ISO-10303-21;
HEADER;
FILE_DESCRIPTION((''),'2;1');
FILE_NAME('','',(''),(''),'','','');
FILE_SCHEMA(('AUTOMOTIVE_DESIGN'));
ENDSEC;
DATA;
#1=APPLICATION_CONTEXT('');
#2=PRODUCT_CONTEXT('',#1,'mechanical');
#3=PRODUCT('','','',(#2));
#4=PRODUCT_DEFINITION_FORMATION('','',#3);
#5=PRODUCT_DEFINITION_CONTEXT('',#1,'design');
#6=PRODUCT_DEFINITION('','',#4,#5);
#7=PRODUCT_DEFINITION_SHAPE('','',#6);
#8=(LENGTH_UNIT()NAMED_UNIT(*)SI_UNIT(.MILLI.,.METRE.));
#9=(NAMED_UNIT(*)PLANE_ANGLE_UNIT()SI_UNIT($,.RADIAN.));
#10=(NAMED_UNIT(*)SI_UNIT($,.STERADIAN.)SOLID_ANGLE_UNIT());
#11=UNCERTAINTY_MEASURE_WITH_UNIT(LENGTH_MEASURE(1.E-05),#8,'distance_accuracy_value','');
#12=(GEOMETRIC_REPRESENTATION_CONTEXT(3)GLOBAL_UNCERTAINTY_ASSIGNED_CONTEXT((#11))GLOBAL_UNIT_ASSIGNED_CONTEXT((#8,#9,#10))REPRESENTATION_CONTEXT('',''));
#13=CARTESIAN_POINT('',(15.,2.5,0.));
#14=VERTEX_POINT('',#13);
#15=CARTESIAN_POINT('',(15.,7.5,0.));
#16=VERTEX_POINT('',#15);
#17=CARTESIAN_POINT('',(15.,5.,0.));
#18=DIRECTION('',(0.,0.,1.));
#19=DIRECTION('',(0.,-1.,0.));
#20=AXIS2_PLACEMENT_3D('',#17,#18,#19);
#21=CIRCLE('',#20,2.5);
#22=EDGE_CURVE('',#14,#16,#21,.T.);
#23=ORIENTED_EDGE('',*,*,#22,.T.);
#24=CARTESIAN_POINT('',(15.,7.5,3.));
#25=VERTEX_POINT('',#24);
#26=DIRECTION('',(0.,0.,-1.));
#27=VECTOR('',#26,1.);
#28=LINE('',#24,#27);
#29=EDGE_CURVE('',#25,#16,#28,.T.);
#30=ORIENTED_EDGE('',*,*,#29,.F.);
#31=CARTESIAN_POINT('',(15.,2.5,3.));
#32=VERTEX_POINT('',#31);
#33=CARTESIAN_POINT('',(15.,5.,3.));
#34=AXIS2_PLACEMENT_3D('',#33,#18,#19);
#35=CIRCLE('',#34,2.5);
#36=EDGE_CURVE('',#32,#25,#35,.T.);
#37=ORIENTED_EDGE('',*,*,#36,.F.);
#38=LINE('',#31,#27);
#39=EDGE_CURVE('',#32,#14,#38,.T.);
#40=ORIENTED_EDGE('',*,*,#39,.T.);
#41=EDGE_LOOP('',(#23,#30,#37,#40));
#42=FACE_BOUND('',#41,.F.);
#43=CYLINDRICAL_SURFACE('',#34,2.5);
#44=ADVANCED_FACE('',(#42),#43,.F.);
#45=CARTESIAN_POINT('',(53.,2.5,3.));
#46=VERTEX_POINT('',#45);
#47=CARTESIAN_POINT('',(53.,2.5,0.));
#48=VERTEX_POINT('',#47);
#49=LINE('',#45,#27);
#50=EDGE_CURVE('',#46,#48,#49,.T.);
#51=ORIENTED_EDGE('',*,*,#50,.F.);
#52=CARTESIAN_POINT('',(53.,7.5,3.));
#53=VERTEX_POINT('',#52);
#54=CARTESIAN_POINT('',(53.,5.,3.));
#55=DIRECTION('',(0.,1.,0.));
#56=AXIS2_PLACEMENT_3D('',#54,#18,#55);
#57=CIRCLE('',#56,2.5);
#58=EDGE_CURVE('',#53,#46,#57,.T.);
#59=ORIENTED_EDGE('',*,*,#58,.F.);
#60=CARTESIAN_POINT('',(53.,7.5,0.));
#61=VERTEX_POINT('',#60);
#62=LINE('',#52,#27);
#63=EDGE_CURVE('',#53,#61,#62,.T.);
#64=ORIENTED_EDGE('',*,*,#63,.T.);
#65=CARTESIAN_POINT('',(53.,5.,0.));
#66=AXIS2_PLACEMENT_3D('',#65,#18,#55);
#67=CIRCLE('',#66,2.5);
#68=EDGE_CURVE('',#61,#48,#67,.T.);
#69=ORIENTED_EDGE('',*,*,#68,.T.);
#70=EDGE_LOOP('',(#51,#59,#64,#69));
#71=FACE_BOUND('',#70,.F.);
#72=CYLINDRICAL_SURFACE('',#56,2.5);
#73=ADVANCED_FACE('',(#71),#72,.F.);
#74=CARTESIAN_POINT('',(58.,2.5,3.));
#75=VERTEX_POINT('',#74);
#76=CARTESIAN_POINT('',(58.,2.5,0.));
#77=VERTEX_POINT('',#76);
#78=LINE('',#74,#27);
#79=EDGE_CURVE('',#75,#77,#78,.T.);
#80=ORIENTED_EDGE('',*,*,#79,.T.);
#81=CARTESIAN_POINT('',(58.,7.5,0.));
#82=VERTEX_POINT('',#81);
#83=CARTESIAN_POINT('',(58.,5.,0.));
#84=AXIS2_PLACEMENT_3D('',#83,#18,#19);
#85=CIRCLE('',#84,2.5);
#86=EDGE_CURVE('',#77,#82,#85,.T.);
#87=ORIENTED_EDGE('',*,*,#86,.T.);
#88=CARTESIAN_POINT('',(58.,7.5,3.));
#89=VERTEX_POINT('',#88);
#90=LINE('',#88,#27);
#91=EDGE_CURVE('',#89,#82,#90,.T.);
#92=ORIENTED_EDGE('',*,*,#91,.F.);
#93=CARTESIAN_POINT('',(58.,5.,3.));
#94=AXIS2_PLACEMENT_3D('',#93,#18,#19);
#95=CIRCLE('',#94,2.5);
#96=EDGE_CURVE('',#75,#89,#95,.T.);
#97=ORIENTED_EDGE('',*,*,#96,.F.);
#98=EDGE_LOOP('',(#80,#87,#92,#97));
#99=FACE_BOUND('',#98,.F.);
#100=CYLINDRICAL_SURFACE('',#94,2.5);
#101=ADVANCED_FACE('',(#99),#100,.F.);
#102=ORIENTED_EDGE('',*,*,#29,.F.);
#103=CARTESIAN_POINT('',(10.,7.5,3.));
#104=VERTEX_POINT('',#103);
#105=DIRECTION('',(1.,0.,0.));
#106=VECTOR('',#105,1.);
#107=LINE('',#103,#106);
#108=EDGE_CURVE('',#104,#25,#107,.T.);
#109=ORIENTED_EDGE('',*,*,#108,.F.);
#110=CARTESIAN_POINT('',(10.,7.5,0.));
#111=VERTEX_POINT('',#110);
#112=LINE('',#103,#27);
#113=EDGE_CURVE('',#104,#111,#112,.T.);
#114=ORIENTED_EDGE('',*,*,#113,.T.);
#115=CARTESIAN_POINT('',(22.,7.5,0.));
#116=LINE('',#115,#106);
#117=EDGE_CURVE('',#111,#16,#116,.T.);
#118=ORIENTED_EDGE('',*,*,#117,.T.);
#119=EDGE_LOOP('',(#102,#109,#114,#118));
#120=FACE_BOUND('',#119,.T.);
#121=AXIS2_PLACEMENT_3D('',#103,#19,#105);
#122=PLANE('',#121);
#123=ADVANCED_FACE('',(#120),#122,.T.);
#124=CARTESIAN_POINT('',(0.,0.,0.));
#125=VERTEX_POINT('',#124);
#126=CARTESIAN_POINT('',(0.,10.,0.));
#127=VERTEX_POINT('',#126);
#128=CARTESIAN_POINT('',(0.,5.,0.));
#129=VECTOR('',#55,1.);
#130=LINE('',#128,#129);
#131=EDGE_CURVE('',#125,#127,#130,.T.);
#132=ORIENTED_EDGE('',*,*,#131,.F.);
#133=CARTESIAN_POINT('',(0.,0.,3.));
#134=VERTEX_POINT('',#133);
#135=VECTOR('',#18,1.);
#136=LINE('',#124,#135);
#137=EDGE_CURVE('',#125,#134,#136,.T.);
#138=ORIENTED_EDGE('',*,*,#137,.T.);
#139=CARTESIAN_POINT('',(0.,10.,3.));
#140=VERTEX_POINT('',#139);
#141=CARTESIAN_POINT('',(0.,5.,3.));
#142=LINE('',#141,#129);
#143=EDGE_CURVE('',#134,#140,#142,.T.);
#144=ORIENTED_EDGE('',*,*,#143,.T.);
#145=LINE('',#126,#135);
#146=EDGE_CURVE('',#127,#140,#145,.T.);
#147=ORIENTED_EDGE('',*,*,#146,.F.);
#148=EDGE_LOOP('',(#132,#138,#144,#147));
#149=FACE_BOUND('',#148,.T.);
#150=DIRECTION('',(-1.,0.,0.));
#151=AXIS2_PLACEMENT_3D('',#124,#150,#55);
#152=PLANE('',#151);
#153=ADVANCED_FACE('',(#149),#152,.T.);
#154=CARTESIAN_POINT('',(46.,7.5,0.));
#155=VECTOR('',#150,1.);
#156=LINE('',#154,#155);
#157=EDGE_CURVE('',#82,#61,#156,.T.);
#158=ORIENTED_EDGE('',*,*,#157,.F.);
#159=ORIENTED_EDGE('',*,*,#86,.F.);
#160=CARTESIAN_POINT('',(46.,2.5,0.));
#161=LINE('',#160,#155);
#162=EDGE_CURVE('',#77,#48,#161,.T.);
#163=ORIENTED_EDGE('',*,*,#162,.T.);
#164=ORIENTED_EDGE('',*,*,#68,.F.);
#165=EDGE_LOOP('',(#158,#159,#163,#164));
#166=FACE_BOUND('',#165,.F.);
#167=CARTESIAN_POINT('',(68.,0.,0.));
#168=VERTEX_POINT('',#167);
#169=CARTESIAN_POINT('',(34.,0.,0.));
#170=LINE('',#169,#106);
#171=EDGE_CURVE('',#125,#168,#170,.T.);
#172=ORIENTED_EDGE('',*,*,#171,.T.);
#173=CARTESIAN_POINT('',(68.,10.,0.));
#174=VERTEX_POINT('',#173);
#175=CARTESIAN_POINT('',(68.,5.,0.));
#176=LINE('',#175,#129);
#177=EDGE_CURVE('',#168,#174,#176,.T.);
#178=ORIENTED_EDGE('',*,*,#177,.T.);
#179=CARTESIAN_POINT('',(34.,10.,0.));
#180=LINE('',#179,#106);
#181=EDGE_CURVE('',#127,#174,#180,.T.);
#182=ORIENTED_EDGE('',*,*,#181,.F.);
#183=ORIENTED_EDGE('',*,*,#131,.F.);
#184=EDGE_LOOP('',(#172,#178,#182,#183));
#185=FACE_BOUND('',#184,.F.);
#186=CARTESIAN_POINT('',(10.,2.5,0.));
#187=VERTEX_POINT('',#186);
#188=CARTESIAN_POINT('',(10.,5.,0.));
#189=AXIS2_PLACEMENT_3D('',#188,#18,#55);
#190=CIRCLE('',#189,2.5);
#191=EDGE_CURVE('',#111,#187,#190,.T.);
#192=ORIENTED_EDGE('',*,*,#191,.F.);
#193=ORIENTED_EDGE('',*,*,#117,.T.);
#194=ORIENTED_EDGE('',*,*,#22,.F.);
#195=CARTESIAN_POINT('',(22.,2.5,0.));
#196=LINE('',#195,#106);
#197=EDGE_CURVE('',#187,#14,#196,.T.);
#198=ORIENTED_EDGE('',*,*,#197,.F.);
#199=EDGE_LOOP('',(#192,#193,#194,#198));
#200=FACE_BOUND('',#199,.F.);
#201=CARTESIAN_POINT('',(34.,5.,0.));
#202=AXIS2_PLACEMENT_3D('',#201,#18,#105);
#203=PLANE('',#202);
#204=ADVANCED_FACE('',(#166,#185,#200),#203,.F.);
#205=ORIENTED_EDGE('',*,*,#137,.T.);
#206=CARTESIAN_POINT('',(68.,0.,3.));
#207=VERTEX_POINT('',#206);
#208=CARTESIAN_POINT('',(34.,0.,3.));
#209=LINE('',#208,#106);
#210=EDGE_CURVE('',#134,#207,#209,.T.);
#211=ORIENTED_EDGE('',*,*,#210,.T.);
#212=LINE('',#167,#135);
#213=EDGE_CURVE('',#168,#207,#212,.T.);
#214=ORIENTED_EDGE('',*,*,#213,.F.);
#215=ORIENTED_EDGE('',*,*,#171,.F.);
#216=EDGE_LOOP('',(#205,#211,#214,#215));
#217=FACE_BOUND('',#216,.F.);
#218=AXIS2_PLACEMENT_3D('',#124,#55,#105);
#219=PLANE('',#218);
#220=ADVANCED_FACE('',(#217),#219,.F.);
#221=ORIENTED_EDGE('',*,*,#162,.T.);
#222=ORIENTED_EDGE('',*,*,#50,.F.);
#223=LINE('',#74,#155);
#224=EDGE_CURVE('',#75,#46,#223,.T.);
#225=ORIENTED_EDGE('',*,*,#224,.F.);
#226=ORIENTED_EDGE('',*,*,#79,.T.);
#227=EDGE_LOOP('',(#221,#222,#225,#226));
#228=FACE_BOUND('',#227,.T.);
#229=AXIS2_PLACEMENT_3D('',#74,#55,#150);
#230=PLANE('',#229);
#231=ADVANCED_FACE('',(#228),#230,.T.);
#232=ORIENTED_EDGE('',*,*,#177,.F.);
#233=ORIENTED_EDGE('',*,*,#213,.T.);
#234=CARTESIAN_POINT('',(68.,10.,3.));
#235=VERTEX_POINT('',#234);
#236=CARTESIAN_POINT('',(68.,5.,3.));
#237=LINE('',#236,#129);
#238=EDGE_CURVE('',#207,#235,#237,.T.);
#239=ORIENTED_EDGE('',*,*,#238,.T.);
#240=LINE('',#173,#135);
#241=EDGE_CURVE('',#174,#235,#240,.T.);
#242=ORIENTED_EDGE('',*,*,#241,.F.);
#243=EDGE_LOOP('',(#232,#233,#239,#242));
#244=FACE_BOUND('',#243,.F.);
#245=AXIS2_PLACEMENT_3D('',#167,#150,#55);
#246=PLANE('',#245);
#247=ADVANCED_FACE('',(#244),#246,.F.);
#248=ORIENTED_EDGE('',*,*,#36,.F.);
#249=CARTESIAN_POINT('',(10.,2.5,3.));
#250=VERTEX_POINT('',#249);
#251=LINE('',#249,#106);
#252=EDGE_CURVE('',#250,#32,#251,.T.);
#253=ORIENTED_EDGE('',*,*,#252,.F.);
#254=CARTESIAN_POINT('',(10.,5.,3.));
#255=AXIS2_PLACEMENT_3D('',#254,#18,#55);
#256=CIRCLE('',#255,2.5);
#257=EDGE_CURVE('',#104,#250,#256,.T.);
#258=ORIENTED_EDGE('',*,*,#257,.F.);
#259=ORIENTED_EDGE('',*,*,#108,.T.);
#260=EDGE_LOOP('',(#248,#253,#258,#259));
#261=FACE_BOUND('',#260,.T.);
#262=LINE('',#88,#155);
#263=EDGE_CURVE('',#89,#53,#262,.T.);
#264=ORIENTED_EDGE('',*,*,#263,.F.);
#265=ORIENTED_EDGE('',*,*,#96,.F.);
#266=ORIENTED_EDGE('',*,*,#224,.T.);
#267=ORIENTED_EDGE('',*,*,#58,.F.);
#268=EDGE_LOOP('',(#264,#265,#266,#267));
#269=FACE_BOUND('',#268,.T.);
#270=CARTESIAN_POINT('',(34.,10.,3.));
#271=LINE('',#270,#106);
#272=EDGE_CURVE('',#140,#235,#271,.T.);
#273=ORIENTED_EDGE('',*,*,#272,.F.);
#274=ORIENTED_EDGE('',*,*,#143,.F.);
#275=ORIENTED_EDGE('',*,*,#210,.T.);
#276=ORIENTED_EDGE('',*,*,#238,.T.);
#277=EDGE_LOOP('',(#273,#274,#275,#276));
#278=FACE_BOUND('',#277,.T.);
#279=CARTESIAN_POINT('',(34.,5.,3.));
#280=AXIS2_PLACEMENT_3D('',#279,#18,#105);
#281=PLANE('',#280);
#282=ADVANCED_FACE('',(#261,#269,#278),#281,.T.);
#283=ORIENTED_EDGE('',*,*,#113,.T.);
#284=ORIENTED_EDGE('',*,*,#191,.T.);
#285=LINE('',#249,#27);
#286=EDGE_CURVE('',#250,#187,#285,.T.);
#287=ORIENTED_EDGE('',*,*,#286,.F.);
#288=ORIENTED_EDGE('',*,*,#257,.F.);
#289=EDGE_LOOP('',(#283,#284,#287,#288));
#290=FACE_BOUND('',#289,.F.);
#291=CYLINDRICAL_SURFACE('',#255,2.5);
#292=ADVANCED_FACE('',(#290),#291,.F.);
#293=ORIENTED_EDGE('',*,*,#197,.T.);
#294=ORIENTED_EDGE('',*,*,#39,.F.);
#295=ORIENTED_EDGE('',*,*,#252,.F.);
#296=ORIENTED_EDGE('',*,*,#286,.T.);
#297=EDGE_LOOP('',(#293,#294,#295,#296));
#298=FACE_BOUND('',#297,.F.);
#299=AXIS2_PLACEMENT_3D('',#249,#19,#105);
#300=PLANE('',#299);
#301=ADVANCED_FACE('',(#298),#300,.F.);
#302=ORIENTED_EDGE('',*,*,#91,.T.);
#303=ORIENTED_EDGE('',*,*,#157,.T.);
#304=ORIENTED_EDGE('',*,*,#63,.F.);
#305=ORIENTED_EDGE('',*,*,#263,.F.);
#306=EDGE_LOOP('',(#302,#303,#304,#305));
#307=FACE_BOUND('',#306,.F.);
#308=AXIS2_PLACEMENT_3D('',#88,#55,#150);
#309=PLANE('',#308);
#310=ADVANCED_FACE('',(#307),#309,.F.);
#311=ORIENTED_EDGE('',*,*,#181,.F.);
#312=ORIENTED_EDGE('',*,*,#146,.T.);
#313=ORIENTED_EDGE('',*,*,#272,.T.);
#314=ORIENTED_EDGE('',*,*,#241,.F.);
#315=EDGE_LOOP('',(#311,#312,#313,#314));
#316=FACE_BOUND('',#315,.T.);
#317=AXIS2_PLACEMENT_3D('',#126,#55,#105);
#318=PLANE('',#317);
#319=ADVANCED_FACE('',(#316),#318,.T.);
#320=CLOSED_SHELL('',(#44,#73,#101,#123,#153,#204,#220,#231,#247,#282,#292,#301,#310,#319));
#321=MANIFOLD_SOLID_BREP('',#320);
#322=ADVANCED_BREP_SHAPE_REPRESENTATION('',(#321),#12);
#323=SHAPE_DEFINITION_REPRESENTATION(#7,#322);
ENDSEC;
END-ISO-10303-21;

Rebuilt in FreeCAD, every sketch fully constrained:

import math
import FreeCAD as App
import Part
import Sketcher

doc = App.newDocument("Part")
body = doc.addObject("PartDesign::Body", "Body")

# Sketch on XY plane
sketch1 = doc.addObject("Sketcher::SketchObject", "Sketch")
body.addObject(sketch1)
sketch1.AttachmentSupport = (doc.XY_Plane, [""])
sketch1.MapMode = "FlatFace"
sketch1.addGeometry(Part.LineSegment(App.Vector(0, 10, 0), App.Vector(0, 0, 0)), False)
sketch1.addGeometry(Part.LineSegment(App.Vector(0, 0, 0), App.Vector(68, 0, 0)), False)
sketch1.addGeometry(Part.LineSegment(App.Vector(68, 0, 0), App.Vector(68, 10, 0)), False)
sketch1.addGeometry(Part.LineSegment(App.Vector(68, 10, 0), App.Vector(0, 10, 0)), False)
sketch1.addConstraint(Sketcher.Constraint("Coincident", 0, 2, 1, 1))
sketch1.addConstraint(Sketcher.Constraint("Coincident", 1, 2, 2, 1))
sketch1.addConstraint(Sketcher.Constraint("Coincident", 2, 2, 3, 1))
sketch1.addConstraint(Sketcher.Constraint("Coincident", 3, 2, 0, 1))
sketch1.addConstraint(Sketcher.Constraint("Vertical", 0))
sketch1.addConstraint(Sketcher.Constraint("Horizontal", 1))
sketch1.addConstraint(Sketcher.Constraint("Vertical", 2))
sketch1.addConstraint(Sketcher.Constraint("Horizontal", 3))
sketch1.addConstraint(Sketcher.Constraint("Coincident", 0, 2, -1, 1))
sketch1.addConstraint(Sketcher.Constraint("DistanceX", 1, 1, 1, 2, 68.0))
sketch1.addConstraint(Sketcher.Constraint("DistanceY", 0, 2, 0, 1, 10.0))
pad1 = doc.addObject("PartDesign::Pad", "Pad")
body.addObject(pad1)
pad1.Profile = sketch1
pad1.Length = 3

# Sketch on XY plane
sketch2 = doc.addObject("Sketcher::SketchObject", "Sketch001")
body.addObject(sketch2)
sketch2.AttachmentSupport = (doc.XY_Plane, [""])
sketch2.MapMode = "FlatFace"
sketch2.AttachmentOffset = App.Placement(App.Vector(0, 0, 3), App.Rotation())
sketch2.addGeometry(Part.ArcOfCircle(Part.Circle(App.Vector(10, 5, 0), App.Vector(0, 0, 1), 2.5), math.radians(90), math.radians(270)), False)
sketch2.addGeometry(Part.LineSegment(App.Vector(10, 2.5, 0), App.Vector(15, 2.5, 0)), False)
sketch2.addGeometry(Part.ArcOfCircle(Part.Circle(App.Vector(15, 5, 0), App.Vector(0, 0, 1), 2.5), math.radians(-90), math.radians(90)), False)
sketch2.addGeometry(Part.LineSegment(App.Vector(15, 7.5, 0), App.Vector(10, 7.5, 0)), False)
sketch2.addGeometry(Part.ArcOfCircle(Part.Circle(App.Vector(58, 5, 0), App.Vector(0, 0, 1), 2.5), math.radians(-90), math.radians(90)), False)
sketch2.addGeometry(Part.LineSegment(App.Vector(58, 7.5, 0), App.Vector(53, 7.5, 0)), False)
sketch2.addGeometry(Part.ArcOfCircle(Part.Circle(App.Vector(53, 5, 0), App.Vector(0, 0, 1), 2.5), math.radians(90), math.radians(270)), False)
sketch2.addGeometry(Part.LineSegment(App.Vector(53, 2.5, 0), App.Vector(58, 2.5, 0)), False)
sketch2.addConstraint(Sketcher.Constraint("Tangent", 0, 2, 1, 1))
sketch2.addConstraint(Sketcher.Constraint("Tangent", 1, 2, 2, 1))
sketch2.addConstraint(Sketcher.Constraint("Tangent", 2, 2, 3, 1))
sketch2.addConstraint(Sketcher.Constraint("Tangent", 3, 2, 0, 1))
sketch2.addConstraint(Sketcher.Constraint("Tangent", 4, 2, 5, 1))
sketch2.addConstraint(Sketcher.Constraint("Tangent", 5, 2, 6, 1))
sketch2.addConstraint(Sketcher.Constraint("Tangent", 6, 2, 7, 1))
sketch2.addConstraint(Sketcher.Constraint("Tangent", 7, 2, 4, 1))
sketch2.addConstraint(Sketcher.Constraint("Horizontal", 1))
sketch2.addConstraint(Sketcher.Constraint("Horizontal", 3))
sketch2.addConstraint(Sketcher.Constraint("Horizontal", 5))
sketch2.addConstraint(Sketcher.Constraint("Horizontal", 7))
sketch2.addConstraint(Sketcher.Constraint("Equal", 2, 4))
sketch2.addConstraint(Sketcher.Constraint("Horizontal", 2, 3, 4, 3))
sketch2.addConstraint(Sketcher.Constraint("Equal", 3, 5))
sketch2.addConstraint(Sketcher.Constraint("Radius", 0, 2.5))
sketch2.addConstraint(Sketcher.Constraint("DistanceX", 1, 1, 1, 2, 5.0))
sketch2.addConstraint(Sketcher.Constraint("DistanceX", -1, 1, 0, 3, 10.0))
sketch2.addConstraint(Sketcher.Constraint("DistanceY", -1, 1, 0, 3, 5.0))
sketch2.addConstraint(Sketcher.Constraint("DistanceX", -1, 1, 4, 3, 58.0))
pocket1 = doc.addObject("PartDesign::Pocket", "Pocket")
body.addObject(pocket1)
pocket1.Profile = sketch2
pocket1.Type = "ThroughAll"

doc.recompute()
